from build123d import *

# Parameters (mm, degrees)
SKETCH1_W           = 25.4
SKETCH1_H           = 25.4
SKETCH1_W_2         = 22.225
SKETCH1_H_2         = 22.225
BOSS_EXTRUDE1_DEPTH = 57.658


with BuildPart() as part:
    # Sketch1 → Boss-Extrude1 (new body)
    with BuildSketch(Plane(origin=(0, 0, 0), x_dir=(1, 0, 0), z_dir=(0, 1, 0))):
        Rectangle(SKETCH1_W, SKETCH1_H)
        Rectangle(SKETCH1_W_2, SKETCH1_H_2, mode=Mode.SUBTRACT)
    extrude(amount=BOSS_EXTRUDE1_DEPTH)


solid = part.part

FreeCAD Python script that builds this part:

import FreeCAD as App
import Part
import Sketcher
from FreeCAD import Vector
Q = App.Units.Quantity

doc = App.newDocument("Part")
body = doc.addObject("PartDesign::Body", "Body")

sketch1 = doc.addObject("Sketcher::SketchObject", "Sketch")
body.addObject(sketch1)
sketch1.AttachmentSupport = (doc.XZ_Plane, [""])
sketch1.MapMode = "FlatFace"
sketch1.addGeometry([
    Part.LineSegment(Vector(-12.7, -12.7, 0), Vector(-12.7, 12.7, 0)),
    Part.LineSegment(Vector(-12.7, 12.7, 0), Vector(12.7, 12.7, 0)),
    Part.LineSegment(Vector(12.7, 12.7, 0), Vector(12.7, -12.7, 0)),
    Part.LineSegment(Vector(12.7, -12.7, 0), Vector(-12.7, -12.7, 0)),
    Part.LineSegment(Vector(11.1125, 11.1125, 0), Vector(-11.1125, 11.1125, 0)),
    Part.LineSegment(Vector(-11.1125, 11.1125, 0), Vector(-11.1125, -11.1125, 0)),
    Part.LineSegment(Vector(-11.1125, -11.1125, 0), Vector(11.1125, -11.1125, 0)),
    Part.LineSegment(Vector(11.1125, -11.1125, 0), Vector(11.1125, 11.1125, 0)),
], False)
sketch1.addConstraint([
    Sketcher.Constraint("Coincident", 0, 2, 1, 1),
    Sketcher.Constraint("Coincident", 1, 2, 2, 1),
    Sketcher.Constraint("Coincident", 2, 2, 3, 1),
    Sketcher.Constraint("Coincident", 3, 2, 0, 1),
    Sketcher.Constraint("Coincident", 4, 2, 5, 1),
    Sketcher.Constraint("Coincident", 5, 2, 6, 1),
    Sketcher.Constraint("Coincident", 6, 2, 7, 1),
    Sketcher.Constraint("Coincident", 7, 2, 4, 1),
    Sketcher.Constraint("Vertical", 0),
    Sketcher.Constraint("Horizontal", 1),
    Sketcher.Constraint("Vertical", 2),
    Sketcher.Constraint("Horizontal", 3),
    Sketcher.Constraint("Horizontal", 4),
    Sketcher.Constraint("Vertical", 5),
    Sketcher.Constraint("Horizontal", 6),
    Sketcher.Constraint("Vertical", 7),
    Sketcher.Constraint("Symmetric", 0, 2, 2, 2, -1, 1),
    Sketcher.Constraint("Symmetric", 4, 2, 6, 2, -1, 1),
    Sketcher.Constraint("Equal", 3, 0),
    Sketcher.Constraint("Equal", 6, 5),
    Sketcher.Constraint("DistanceX", 1, 1, 1, 2, Q("1 in")),
    Sketcher.Constraint("DistanceX", 4, 2, 4, 1, Q("0.875 in")),
])
pad1 = doc.addObject("PartDesign::Pad", "Pad")
body.addObject(pad1)
pad1.Profile = sketch1
pad1.Length = Q("2.27 in")
pad1.Reversed = True

doc.recompute()
